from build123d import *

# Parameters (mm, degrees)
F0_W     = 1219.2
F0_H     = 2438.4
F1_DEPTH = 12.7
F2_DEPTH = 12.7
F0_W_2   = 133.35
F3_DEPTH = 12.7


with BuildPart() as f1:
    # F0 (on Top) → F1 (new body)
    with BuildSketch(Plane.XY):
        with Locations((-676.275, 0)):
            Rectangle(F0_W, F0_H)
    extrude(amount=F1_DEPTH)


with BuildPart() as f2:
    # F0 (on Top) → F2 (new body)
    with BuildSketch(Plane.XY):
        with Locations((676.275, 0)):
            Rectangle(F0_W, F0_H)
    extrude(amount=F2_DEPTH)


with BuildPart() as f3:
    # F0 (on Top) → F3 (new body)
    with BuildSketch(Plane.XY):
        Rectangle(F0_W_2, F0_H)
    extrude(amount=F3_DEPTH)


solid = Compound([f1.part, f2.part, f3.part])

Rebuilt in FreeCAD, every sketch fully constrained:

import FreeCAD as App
import Part
import Sketcher
Q = App.Units.Quantity

doc = App.newDocument("Part")
params = doc.addObject("Spreadsheet::Sheet", "Params")
for row, (alias, value) in enumerate([
    ("sketch1_width", "48 in"),
    ("sketch1_height", "96 in"),
    ("pad1_length", "0.5 in"),
    ("sketch2_width", "48 in"),
    ("sketch2_height", "96 in"),
    ("pad2_length", "0.5 in"),
    ("sketch3_height", "96 in"),
    ("sketch3_width", "5.25 in"),
    ("pad3_length", "0.5 in"),
], start=1):
    params.set(f"A{row}", alias)
    params.set(f"B{row}", "=" + value)
    params.setAlias(f"B{row}", alias)

body = doc.addObject("PartDesign::Body", "Body")

# Sketch on XY plane
sketch1 = doc.addObject("Sketcher::SketchObject", "Sketch")
body.addObject(sketch1)
sketch1.AttachmentSupport = (doc.XY_Plane, [""])
sketch1.MapMode = "FlatFace"
sketch1.addGeometry([
    Part.LineSegment(App.Vector(-1286, 1219, 0), App.Vector(-1286, -1219, 0)),
    Part.LineSegment(App.Vector(-1286, -1219, 0), App.Vector(-67, -1219, 0)),
    Part.LineSegment(App.Vector(-67, -1219, 0), App.Vector(-67, 1219, 0)),
    Part.LineSegment(App.Vector(-67, 1219, 0), App.Vector(-1286, 1219, 0)),
], False)
sketch1.addConstraint([
    Sketcher.Constraint("Coincident", 0, 2, 1, 1),
    Sketcher.Constraint("Coincident", 1, 2, 2, 1),
    Sketcher.Constraint("Coincident", 2, 2, 3, 1),
    Sketcher.Constraint("Coincident", 3, 2, 0, 1),
    Sketcher.Constraint("Vertical", 0),
    Sketcher.Constraint("Horizontal", 1),
    Sketcher.Constraint("Vertical", 2),
    Sketcher.Constraint("Horizontal", 3),
    Sketcher.Constraint("DistanceX", 1, 1, 1, 2, Q("48 in")),
    Sketcher.Constraint("DistanceY", 0, 2, 0, 1, Q("96 in")),
    Sketcher.Constraint("DistanceY", 0, 2, -1, 1, Q("48 in")),
    Sketcher.Constraint("DistanceX", 0, 2, -1, 1, Q("50.625 in")),
])
sketch1.setExpression("Constraints[8]", "Params.sketch1_width")
sketch1.setExpression("Constraints[9]", "Params.sketch1_height")
pad1 = doc.addObject("PartDesign::Pad", "Pad")
body.addObject(pad1)
pad1.Profile = sketch1
pad1.setExpression("Length", "Params.pad1_length")
body2 = doc.addObject("PartDesign::Body", "Body001")

# Sketch on XY plane
sketch2 = doc.addObject("Sketcher::SketchObject", "Sketch001")
body2.addObject(sketch2)
sketch2.AttachmentSupport = (doc.getObject("XY_Plane001"), [""])
sketch2.MapMode = "FlatFace"
sketch2.addGeometry([
    Part.LineSegment(App.Vector(67, 1219, 0), App.Vector(67, -1219, 0)),
    Part.LineSegment(App.Vector(67, -1219, 0), App.Vector(1286, -1219, 0)),
    Part.LineSegment(App.Vector(1286, -1219, 0), App.Vector(1286, 1219, 0)),
    Part.LineSegment(App.Vector(1286, 1219, 0), App.Vector(67, 1219, 0)),
], False)
sketch2.addConstraint([
    Sketcher.Constraint("Coincident", 0, 2, 1, 1),
    Sketcher.Constraint("Coincident", 1, 2, 2, 1),
    Sketcher.Constraint("Coincident", 2, 2, 3, 1),
    Sketcher.Constraint("Coincident", 3, 2, 0, 1),
    Sketcher.Constraint("Vertical", 0),
    Sketcher.Constraint("Horizontal", 1),
    Sketcher.Constraint("Vertical", 2),
    Sketcher.Constraint("Horizontal", 3),
    Sketcher.Constraint("DistanceX", 1, 1, 1, 2, Q("48 in")),
    Sketcher.Constraint("DistanceY", 0, 2, 0, 1, Q("96 in")),
    Sketcher.Constraint("DistanceY", 0, 2, -1, 1, Q("48 in")),
    Sketcher.Constraint("DistanceX", -1, 1, 0, 2, Q("2.625 in")),
])
sketch2.setExpression("Constraints[8]", "Params.sketch2_width")
sketch2.setExpression("Constraints[9]", "Params.sketch2_height")
pad2 = doc.addObject("PartDesign::Pad", "Pad001")
body2.addObject(pad2)
pad2.Profile = sketch2
pad2.setExpression("Length", "Params.pad2_length")
body3 = doc.addObject("PartDesign::Body", "Body002")

# Sketch on XY plane
sketch3 = doc.addObject("Sketcher::SketchObject", "Sketch002")
body3.addObject(sketch3)
sketch3.AttachmentSupport = (doc.getObject("XY_Plane002"), [""])
sketch3.MapMode = "FlatFace"
sketch3.addGeometry([
    Part.LineSegment(App.Vector(-67, 1219, 0), App.Vector(-67, -1219, 0)),
    Part.LineSegment(App.Vector(-67, -1219, 0), App.Vector(67, -1219, 0)),
    Part.LineSegment(App.Vector(67, -1219, 0), App.Vector(67, 1219, 0)),
    Part.LineSegment(App.Vector(67, 1219, 0), App.Vector(-67, 1219, 0)),
], False)
sketch3.addConstraint([
    Sketcher.Constraint("Coincident", 0, 2, 1, 1),
    Sketcher.Constraint("Coincident", 1, 2, 2, 1),
    Sketcher.Constraint("Coincident", 2, 2, 3, 1),
    Sketcher.Constraint("Coincident", 3, 2, 0, 1),
    Sketcher.Constraint("Vertical", 0),
    Sketcher.Constraint("Horizontal", 1),
    Sketcher.Constraint("Vertical", 2),
    Sketcher.Constraint("Horizontal", 3),
    Sketcher.Constraint("Symmetric", 0, 2, 2, 2, -1, 1),
    Sketcher.Constraint("DistanceY", 0, 2, 0, 1, Q("96 in")),
    Sketcher.Constraint("DistanceX", 1, 1, 1, 2, Q("5.25 in")),
])
sketch3.setExpression("Constraints[9]", "Params.sketch3_height")
sketch3.setExpression("Constraints[10]", "Params.sketch3_width")
pad3 = doc.addObject("PartDesign::Pad", "Pad002")
body3.addObject(pad3)
pad3.Profile = sketch3
pad3.setExpression("Length", "Params.pad3_length")

doc.recompute()
